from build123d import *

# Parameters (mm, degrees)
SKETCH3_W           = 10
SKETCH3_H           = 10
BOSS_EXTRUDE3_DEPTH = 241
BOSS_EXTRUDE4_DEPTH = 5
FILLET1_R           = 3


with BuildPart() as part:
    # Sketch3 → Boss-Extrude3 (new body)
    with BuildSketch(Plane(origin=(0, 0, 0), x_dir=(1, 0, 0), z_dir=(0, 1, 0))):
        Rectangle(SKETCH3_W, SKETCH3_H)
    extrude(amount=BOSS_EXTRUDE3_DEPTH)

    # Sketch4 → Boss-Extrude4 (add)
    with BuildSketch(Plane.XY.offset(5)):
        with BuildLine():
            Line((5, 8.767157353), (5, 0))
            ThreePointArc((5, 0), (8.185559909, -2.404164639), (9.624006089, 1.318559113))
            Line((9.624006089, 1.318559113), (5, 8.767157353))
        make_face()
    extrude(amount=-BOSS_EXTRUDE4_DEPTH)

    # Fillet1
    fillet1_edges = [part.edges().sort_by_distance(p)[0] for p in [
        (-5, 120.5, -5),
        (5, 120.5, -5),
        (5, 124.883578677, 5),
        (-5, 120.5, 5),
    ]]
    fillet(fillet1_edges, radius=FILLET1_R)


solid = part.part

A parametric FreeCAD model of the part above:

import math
import FreeCAD as App
import Part
import Sketcher

V = App.Vector
Q = App.Units.Quantity


def edges_at(feature, points):
    """Names of the edges that pass closest to the given points."""
    edges = feature.Shape.Edges
    near = lambda p: min(range(len(edges)), key=lambda i: edges[i].distToShape(Part.Vertex(*p))[0])
    return sorted({f"Edge{near(p) + 1}" for p in points})

doc = App.newDocument("Part")
params = doc.addObject("Spreadsheet::Sheet", "Params")
for row, (alias, value) in enumerate([
    ("sketch1_width", "10 mm"),
    ("pad1_length", "241 mm"),
    ("sketch2_radius", "2.5 mm"),
    ("pad2_length", "5 mm"),
    ("fillet_radius", "3 mm"),
], start=1):
    params.set(f"A{row}", alias)
    params.set(f"B{row}", "=" + value)
    params.setAlias(f"B{row}", alias)

body = doc.addObject("PartDesign::Body", "Body")

sketch1 = body.newObject("Sketcher::SketchObject", "Sketch")
sketch1.AttachmentSupport = (doc.getObject("XZ_Plane"), [""])
sketch1.MapMode = "FlatFace"
sketch1.addGeometry([
    Part.LineSegment(V(-5, -5, 0), V(-5, 5, 0)),
    Part.LineSegment(V(-5, 5, 0), V(5, 5, 0)),
    Part.LineSegment(V(5, 5, 0), V(5, -5, 0)),
    Part.LineSegment(V(5, -5, 0), V(-5, -5, 0)),
], False)
sketch1.addConstraint([
    Sketcher.Constraint("Coincident", 0, 2, 1, 1),
    Sketcher.Constraint("Coincident", 1, 2, 2, 1),
    Sketcher.Constraint("Coincident", 2, 2, 3, 1),
    Sketcher.Constraint("Coincident", 3, 2, 0, 1),
    Sketcher.Constraint("Vertical", 0),
    Sketcher.Constraint("Horizontal", 1),
    Sketcher.Constraint("Vertical", 2),
    Sketcher.Constraint("Horizontal", 3),
    Sketcher.Constraint("Symmetric", 0, 2, 2, 2, -1, 1),
    Sketcher.Constraint("Equal", 3, 0),
    Sketcher.Constraint("DistanceX", 1, 1, 1, 2, Q("10 mm")),
])
sketch1.setExpression("Constraints[10]", "Params.sketch1_width")
pad1 = body.newObject("PartDesign::Pad", "Pad")
pad1.Profile = sketch1
pad1.setExpression("Length", "Params.pad1_length")
pad1.Reversed = True

sketch2 = body.newObject("Sketcher::SketchObject", "Sketch001")
sketch2.AttachmentSupport = (doc.getObject("XY_Plane"), [""])
sketch2.MapMode = "FlatFace"
sketch2.AttachmentOffset = App.Placement(V(0, 0, 5), App.Rotation())
sketch2.addGeometry([
    Part.LineSegment(V(5, 8.8, 0), V(5, 0, 0)),
    Part.ArcOfCircle(Part.Circle(V(7.5, 0, 0), V(0, 0, 1), 2.5), math.radians(180), math.radians(392)),
    Part.LineSegment(V(9.6, 1.3, 0), V(5, 8.8, 0)),
], False)
sketch2.addConstraint([
    Sketcher.Constraint("Tangent", 0, 2, 1, 1),
    Sketcher.Constraint("Tangent", 1, 2, 2, 1),
    Sketcher.Constraint("Coincident", 2, 2, 0, 1),
    Sketcher.Constraint("Vertical", 0),
    Sketcher.Constraint("PointOnObject", 1, 3, -1),
    Sketcher.Constraint("Radius", 1, Q("2.5 mm")),
    Sketcher.Constraint("DistanceX", -1, 1, 0, 2, Q("5 mm")),
    Sketcher.Constraint("DistanceY", 1, 2, 2, 2, Q("7.448598 mm")),
])
sketch2.setExpression("Constraints[5]", "Params.sketch2_radius")
pad2 = body.newObject("PartDesign::Pad", "Pad001")
pad2.Profile = sketch2
pad2.setExpression("Length", "Params.pad2_length")
pad2.Reversed = True
doc.recompute()

fillet = body.newObject("PartDesign::Fillet", "Fillet")
fillet.Base = (pad2, edges_at(pad2, [
    (-5, 120.5, -5),
    (5, 120.5, -5),
    (5, 124.884, 5),
    (-5, 120.5, 5),
]))
fillet.setExpression("Radius", "Params.fillet_radius")

doc.recompute()
